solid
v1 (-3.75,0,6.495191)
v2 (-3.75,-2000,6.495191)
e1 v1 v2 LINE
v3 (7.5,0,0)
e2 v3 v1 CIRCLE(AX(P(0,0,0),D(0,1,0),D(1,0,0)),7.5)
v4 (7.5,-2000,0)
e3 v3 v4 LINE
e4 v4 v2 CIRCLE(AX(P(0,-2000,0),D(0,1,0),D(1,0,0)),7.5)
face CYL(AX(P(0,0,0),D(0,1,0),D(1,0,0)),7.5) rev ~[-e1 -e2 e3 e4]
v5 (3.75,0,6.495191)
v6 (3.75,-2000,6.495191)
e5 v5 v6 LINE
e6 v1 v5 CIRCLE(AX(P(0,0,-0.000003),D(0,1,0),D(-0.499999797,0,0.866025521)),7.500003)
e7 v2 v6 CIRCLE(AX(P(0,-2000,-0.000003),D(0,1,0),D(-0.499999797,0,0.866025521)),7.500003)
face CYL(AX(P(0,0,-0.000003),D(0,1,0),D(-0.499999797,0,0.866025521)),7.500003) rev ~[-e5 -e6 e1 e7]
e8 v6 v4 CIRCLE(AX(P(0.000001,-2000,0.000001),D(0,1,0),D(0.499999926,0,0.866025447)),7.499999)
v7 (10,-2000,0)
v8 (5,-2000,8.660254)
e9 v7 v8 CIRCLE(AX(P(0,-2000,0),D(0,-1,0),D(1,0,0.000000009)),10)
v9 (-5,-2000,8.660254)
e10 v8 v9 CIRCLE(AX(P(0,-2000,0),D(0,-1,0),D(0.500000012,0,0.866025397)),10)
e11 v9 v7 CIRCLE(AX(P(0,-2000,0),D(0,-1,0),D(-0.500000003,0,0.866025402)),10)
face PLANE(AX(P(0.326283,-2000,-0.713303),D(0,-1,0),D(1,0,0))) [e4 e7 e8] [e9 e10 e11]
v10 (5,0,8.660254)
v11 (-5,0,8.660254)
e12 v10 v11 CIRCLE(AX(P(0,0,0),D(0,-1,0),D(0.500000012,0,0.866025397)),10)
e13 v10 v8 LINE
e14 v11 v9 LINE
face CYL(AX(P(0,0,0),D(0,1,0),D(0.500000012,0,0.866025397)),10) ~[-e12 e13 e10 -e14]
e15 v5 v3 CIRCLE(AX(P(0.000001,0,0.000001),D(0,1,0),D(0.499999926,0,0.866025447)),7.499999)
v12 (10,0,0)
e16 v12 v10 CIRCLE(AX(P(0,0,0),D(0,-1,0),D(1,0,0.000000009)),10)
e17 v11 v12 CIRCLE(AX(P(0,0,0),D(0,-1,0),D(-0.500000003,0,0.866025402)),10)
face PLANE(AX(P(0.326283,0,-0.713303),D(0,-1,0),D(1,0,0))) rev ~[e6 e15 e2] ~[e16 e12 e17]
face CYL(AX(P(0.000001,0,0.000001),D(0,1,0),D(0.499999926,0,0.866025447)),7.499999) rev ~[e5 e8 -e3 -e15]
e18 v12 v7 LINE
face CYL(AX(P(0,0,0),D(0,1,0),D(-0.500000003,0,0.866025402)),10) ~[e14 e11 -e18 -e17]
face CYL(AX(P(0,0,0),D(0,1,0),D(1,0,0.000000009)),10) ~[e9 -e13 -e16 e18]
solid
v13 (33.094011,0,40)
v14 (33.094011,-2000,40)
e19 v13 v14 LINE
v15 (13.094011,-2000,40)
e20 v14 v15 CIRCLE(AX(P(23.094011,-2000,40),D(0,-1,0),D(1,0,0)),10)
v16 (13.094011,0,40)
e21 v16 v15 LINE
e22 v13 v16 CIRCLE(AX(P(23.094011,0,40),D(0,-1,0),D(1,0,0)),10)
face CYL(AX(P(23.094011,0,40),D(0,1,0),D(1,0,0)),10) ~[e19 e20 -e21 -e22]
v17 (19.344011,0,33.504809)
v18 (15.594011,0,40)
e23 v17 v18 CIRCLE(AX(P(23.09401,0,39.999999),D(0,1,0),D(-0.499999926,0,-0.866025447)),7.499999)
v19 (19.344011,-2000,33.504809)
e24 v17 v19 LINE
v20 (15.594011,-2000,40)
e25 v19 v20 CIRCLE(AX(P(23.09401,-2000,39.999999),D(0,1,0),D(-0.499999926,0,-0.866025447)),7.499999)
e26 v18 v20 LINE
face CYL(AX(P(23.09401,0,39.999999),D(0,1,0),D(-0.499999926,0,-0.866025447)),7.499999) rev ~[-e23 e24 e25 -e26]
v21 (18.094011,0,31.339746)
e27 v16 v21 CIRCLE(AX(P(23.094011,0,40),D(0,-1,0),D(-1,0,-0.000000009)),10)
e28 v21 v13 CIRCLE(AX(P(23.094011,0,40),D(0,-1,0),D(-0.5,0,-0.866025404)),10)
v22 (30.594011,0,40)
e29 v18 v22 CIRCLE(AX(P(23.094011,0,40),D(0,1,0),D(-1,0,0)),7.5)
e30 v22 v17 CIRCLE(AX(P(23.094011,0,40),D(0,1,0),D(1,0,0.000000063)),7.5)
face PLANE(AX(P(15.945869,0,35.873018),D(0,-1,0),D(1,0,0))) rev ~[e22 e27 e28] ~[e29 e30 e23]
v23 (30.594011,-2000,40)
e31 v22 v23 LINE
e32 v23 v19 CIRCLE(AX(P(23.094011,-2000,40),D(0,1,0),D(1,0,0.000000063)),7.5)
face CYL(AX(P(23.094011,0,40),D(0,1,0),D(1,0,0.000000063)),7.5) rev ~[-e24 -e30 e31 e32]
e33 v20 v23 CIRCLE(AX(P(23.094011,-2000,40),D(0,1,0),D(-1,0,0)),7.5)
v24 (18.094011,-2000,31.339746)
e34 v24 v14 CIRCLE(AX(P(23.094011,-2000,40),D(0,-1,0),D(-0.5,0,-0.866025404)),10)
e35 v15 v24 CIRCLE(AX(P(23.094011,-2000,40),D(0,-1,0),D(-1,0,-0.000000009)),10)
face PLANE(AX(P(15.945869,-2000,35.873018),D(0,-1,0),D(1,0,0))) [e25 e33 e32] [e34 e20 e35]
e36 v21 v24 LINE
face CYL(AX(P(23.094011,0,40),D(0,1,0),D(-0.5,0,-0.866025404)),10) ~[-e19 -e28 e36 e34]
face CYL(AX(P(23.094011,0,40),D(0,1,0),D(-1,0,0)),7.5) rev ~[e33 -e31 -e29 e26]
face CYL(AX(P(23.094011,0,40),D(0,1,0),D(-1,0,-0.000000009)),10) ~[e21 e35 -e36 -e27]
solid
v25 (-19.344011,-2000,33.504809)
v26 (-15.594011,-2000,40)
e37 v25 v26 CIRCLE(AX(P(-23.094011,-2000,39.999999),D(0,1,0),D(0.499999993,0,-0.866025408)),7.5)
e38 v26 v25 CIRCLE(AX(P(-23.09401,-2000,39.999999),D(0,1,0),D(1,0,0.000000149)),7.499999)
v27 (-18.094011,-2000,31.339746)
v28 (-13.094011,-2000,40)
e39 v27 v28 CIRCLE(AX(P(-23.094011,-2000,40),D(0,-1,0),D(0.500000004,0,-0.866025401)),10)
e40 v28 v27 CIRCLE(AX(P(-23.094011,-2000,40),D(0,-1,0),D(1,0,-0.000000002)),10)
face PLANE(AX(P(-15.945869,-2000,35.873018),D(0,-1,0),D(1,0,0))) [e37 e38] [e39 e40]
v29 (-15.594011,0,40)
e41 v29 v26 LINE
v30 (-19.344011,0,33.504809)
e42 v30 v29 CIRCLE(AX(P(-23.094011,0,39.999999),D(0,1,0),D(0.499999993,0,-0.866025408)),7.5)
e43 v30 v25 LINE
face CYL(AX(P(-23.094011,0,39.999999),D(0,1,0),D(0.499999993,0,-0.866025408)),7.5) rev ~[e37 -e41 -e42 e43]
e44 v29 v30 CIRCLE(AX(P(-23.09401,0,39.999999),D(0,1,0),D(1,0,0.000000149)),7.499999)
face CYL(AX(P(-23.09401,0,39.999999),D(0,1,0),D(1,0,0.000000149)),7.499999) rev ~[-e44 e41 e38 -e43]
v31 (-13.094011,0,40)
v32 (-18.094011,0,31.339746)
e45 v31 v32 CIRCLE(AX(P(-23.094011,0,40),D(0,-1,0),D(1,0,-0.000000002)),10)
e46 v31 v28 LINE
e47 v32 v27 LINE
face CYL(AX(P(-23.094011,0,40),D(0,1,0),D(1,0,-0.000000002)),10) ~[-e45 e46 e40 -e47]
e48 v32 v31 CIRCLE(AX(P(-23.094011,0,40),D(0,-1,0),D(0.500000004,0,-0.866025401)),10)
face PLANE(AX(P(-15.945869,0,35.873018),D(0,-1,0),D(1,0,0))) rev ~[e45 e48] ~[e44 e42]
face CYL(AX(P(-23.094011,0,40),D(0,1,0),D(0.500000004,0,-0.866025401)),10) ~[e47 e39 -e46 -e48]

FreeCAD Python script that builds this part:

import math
import FreeCAD as App
import Part
import Sketcher

doc = App.newDocument("Part")
body = doc.addObject("PartDesign::Body", "Body")
body.AllowCompound = True

# Sketch on XZ plane
sketch1 = doc.addObject("Sketcher::SketchObject", "Sketch")
body.addObject(sketch1)
sketch1.AttachmentSupport = (doc.XZ_Plane, [""])
sketch1.MapMode = "FlatFace"
sketch1.addGeometry(Part.ArcOfCircle(Part.Circle(App.Vector(-23.094011, 40, 0), App.Vector(0, 0, 1), 10), math.radians(-60), math.radians(-0.000001)), False)
sketch1.addGeometry(Part.ArcOfCircle(Part.Circle(App.Vector(-23.094011, 40, 0), App.Vector(0, 0, 1), 10), math.radians(0), math.radians(300)), False)
sketch1.addGeometry(Part.ArcOfCircle(Part.Circle(App.Vector(-23.09401, 39.999999, 0), App.Vector(0, 0, 1), 7.499999), math.radians(-60.000005), math.radians(0.000009)), False)
sketch1.addGeometry(Part.ArcOfCircle(Part.Circle(App.Vector(-23.094011, 39.999999, 0), App.Vector(0, 0, 1), 7.5), math.radians(0.000004), math.radians(300)), False)
sketch1.addGeometry(Part.ArcOfCircle(Part.Circle(App.Vector(23.094011, 40, 0), App.Vector(0, 0, 1), 10), math.radians(-179.999999), math.radians(-120)), False)
sketch1.addGeometry(Part.ArcOfCircle(Part.Circle(App.Vector(23.094011, 40, 0), App.Vector(0, 0, 1), 10), math.radians(-120), math.radians(0)), False)
sketch1.addGeometry(Part.ArcOfCircle(Part.Circle(App.Vector(23.094011, 40, 0), App.Vector(0, 0, 1), 10), math.radians(0), math.radians(180)), False)
sketch1.addGeometry(Part.ArcOfCircle(Part.Circle(App.Vector(23.09401, 39.999999, 0), App.Vector(0, 0, 1), 7.499999), math.radians(179.999991), math.radians(240.000005)), False)
sketch1.addGeometry(Part.ArcOfCircle(Part.Circle(App.Vector(23.094011, 40, 0), App.Vector(0, 0, 1), 7.5), math.radians(0), math.radians(180)), False)
sketch1.addGeometry(Part.ArcOfCircle(Part.Circle(App.Vector(23.094011, 40, 0), App.Vector(0, 0, 1), 7.5), math.radians(-120), math.radians(0.000004)), False)
sketch1.addGeometry(Part.ArcOfCircle(Part.Circle(App.Vector(0, 0, 0), App.Vector(0, 0, 1), 10), math.radians(120), math.radians(360)), False)
sketch1.addGeometry(Part.ArcOfCircle(Part.Circle(App.Vector(0, 0, 0), App.Vector(0, 0, 1), 10), math.radians(0.000001), math.radians(60)), False)
sketch1.addGeometry(Part.ArcOfCircle(Part.Circle(App.Vector(0, 0, 0), App.Vector(0, 0, 1), 10), math.radians(59.999999), math.radians(120.000001)), False)
sketch1.addGeometry(Part.ArcOfCircle(Part.Circle(App.Vector(0.000001, 0.000001, 0), App.Vector(0, 0, 1), 7.499999), math.radians(-0.000009), math.radians(60.000005)), False)
sketch1.addGeometry(Part.ArcOfCircle(Part.Circle(App.Vector(0, 0, 0), App.Vector(0, 0, 1), 7.5), math.radians(119.999996), math.radians(360)), False)
sketch1.addGeometry(Part.ArcOfCircle(Part.Circle(App.Vector(0, -0.000003, 0), App.Vector(0, 0, 1), 7.500003), math.radians(60.000013), math.radians(119.999987)), False)
sketch1.addConstraint(Sketcher.Constraint("Tangent", 0, 1, 1, 2))
sketch1.addConstraint(Sketcher.Constraint("Coincident", 1, 1, 0, 2))
sketch1.addConstraint(Sketcher.Constraint("Tangent", 2, 1, 3, 2))
sketch1.addConstraint(Sketcher.Constraint("Coincident", 3, 1, 2, 2))
sketch1.addConstraint(Sketcher.Constraint("Tangent", 4, 2, 5, 1))
sketch1.addConstraint(Sketcher.Constraint("Tangent", 5, 2, 6, 1))
sketch1.addConstraint(Sketcher.Constraint("Tangent", 6, 2, 4, 1))
sketch1.addConstraint(Sketcher.Constraint("Tangent", 7, 1, 8, 2))
sketch1.addConstraint(Sketcher.Constraint("Tangent", 8, 1, 9, 2))
sketch1.addConstraint(Sketcher.Constraint("Tangent", 9, 1, 7, 2))
sketch1.addConstraint(Sketcher.Constraint("Tangent", 10, 2, 11, 1))
sketch1.addConstraint(Sketcher.Constraint("Tangent", 11, 2, 12, 1))
sketch1.addConstraint(Sketcher.Constraint("Tangent", 12, 2, 10, 1))
sketch1.addConstraint(Sketcher.Constraint("Tangent", 13, 1, 14, 2))
sketch1.addConstraint(Sketcher.Constraint("Tangent", 14, 1, 15, 2))
sketch1.addConstraint(Sketcher.Constraint("Tangent", 15, 1, 13, 2))
sketch1.addConstraint(Sketcher.Constraint("Coincident", 10, 3, -1, 1))
sketch1.addConstraint(Sketcher.Constraint("Coincident", 13, 3, -1, 1))
sketch1.addConstraint(Sketcher.Constraint("Coincident", 2, 3, 0, 3))
sketch1.addConstraint(Sketcher.Constraint("Coincident", 7, 3, 4, 3))
sketch1.addConstraint(Sketcher.Constraint("Equal", 1, 4))
sketch1.addConstraint(Sketcher.Constraint("Equal", 3, 7))
sketch1.addConstraint(Sketcher.Constraint("Equal", 6, 10))
sketch1.addConstraint(Sketcher.Constraint("Equal", 9, 13))
sketch1.addConstraint(Sketcher.Constraint("Symmetric", 0, 3, 4, 3, -2))
sketch1.addConstraint(Sketcher.Constraint("PointOnObject", 10, 2, -1))
sketch1.addConstraint(Sketcher.Constraint("PointOnObject", 13, 1, -1))
sketch1.addConstraint(Sketcher.Constraint("Horizontal", 9, 3, 1, 1))
sketch1.addConstraint(Sketcher.Constraint("Horizontal", 1, 1, 3, 1))
sketch1.addConstraint(Sketcher.Constraint("Horizontal", 0, 1, 4, 2))
sketch1.addConstraint(Sketcher.Constraint("Horizontal", 3, 1, 5, 2))
sketch1.addConstraint(Sketcher.Constraint("Horizontal", 5, 2, 6, 2))
sketch1.addConstraint(Sketcher.Constraint("Horizontal", 6, 2, 7, 1))
sketch1.addConstraint(Sketcher.Constraint("Horizontal", 7, 1, 8, 1))
sketch1.addConstraint(Sketcher.Constraint("Horizontal", 2, 1, 9, 1))
sketch1.addConstraint(Sketcher.Constraint("Horizontal", 11, 2, 12, 2))
sketch1.addConstraint(Sketcher.Constraint("Horizontal", 14, 1, 15, 1))
sketch1.addConstraint(Sketcher.Constraint("Radius", 0, 10.0))
sketch1.addConstraint(Sketcher.Constraint("Radius", 2, 7.499999))
sketch1.addConstraint(Sketcher.Constraint("DistanceY", -1, 1, 0, 3, 40.0))
sketch1.addConstraint(Sketcher.Constraint("DistanceX", -1, 1, 11, 2, 5.0))
sketch1.addConstraint(Sketcher.Constraint("DistanceX", 2, 3, 0, 1, 4.999999))
sketch1.addConstraint(Sketcher.Constraint("DistanceX", 14, 1, 15, 1, 7.5))
sketch1.addConstraint(Sketcher.Constraint("DistanceX", 2, 1, 0, 1, 1.25))
sketch1.addConstraint(Sketcher.Constraint("DistanceX", 0, 3, -1, 1, 23.094011))
pad1 = doc.addObject("PartDesign::Pad", "Pad")
body.addObject(pad1)
pad1.Profile = sketch1
pad1.Length = 2000

doc.recompute()
